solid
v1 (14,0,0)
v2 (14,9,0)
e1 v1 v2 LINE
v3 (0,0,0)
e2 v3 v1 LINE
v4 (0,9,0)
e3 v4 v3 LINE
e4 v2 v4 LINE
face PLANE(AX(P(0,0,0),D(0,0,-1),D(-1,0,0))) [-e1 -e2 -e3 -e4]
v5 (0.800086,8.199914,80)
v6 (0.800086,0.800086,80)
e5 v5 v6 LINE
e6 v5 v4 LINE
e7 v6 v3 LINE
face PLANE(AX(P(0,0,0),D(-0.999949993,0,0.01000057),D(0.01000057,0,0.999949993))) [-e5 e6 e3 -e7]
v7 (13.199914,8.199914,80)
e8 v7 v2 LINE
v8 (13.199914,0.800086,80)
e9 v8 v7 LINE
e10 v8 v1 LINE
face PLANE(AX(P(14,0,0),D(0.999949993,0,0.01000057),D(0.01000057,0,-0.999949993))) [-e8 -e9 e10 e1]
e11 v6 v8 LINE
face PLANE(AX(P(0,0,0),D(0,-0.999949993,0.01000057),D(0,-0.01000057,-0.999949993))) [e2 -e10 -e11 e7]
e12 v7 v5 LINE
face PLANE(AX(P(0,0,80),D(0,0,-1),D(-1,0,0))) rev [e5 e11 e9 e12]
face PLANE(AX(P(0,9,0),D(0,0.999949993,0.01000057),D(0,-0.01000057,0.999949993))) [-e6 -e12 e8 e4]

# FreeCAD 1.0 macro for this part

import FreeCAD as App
import Part
import Sketcher
from FreeCAD import Vector
Q = App.Units.Quantity

doc = App.newDocument("Part")
body = doc.addObject("PartDesign::Body", "Body")

# Sketch on XY plane
sketch1 = body.newObject("Sketcher::SketchObject", "Sketch")
sketch1.AttachmentSupport = (doc.getObject("XY_Plane"), [""])
sketch1.MapMode = "FlatFace"
sketch1.addGeometry([
    Part.LineSegment(Vector(0, 9, 0), Vector(0, 0, 0)),
    Part.LineSegment(Vector(0, 0, 0), Vector(14, 0, 0)),
    Part.LineSegment(Vector(14, 0, 0), Vector(14, 9, 0)),
    Part.LineSegment(Vector(14, 9, 0), Vector(0, 9, 0)),
], False)
sketch1.addConstraint([
    Sketcher.Constraint("Coincident", 0, 2, 1, 1),
    Sketcher.Constraint("Coincident", 1, 2, 2, 1),
    Sketcher.Constraint("Coincident", 2, 2, 3, 1),
    Sketcher.Constraint("Coincident", 3, 2, 0, 1),
    Sketcher.Constraint("Vertical", 0),
    Sketcher.Constraint("Horizontal", 1),
    Sketcher.Constraint("Vertical", 2),
    Sketcher.Constraint("Horizontal", 3),
    Sketcher.Constraint("Coincident", 0, 2, -1, 1),
    Sketcher.Constraint("DistanceX", 1, 1, 1, 2, Q("14 mm")),
    Sketcher.Constraint("DistanceY", 0, 2, 0, 1, Q("9 mm")),
])
pad1 = body.newObject("PartDesign::Pad", "Pad")
pad1.Profile = sketch1
pad1.Length = 80
pad1.TaperAngle = -0.573

doc.recompute()
